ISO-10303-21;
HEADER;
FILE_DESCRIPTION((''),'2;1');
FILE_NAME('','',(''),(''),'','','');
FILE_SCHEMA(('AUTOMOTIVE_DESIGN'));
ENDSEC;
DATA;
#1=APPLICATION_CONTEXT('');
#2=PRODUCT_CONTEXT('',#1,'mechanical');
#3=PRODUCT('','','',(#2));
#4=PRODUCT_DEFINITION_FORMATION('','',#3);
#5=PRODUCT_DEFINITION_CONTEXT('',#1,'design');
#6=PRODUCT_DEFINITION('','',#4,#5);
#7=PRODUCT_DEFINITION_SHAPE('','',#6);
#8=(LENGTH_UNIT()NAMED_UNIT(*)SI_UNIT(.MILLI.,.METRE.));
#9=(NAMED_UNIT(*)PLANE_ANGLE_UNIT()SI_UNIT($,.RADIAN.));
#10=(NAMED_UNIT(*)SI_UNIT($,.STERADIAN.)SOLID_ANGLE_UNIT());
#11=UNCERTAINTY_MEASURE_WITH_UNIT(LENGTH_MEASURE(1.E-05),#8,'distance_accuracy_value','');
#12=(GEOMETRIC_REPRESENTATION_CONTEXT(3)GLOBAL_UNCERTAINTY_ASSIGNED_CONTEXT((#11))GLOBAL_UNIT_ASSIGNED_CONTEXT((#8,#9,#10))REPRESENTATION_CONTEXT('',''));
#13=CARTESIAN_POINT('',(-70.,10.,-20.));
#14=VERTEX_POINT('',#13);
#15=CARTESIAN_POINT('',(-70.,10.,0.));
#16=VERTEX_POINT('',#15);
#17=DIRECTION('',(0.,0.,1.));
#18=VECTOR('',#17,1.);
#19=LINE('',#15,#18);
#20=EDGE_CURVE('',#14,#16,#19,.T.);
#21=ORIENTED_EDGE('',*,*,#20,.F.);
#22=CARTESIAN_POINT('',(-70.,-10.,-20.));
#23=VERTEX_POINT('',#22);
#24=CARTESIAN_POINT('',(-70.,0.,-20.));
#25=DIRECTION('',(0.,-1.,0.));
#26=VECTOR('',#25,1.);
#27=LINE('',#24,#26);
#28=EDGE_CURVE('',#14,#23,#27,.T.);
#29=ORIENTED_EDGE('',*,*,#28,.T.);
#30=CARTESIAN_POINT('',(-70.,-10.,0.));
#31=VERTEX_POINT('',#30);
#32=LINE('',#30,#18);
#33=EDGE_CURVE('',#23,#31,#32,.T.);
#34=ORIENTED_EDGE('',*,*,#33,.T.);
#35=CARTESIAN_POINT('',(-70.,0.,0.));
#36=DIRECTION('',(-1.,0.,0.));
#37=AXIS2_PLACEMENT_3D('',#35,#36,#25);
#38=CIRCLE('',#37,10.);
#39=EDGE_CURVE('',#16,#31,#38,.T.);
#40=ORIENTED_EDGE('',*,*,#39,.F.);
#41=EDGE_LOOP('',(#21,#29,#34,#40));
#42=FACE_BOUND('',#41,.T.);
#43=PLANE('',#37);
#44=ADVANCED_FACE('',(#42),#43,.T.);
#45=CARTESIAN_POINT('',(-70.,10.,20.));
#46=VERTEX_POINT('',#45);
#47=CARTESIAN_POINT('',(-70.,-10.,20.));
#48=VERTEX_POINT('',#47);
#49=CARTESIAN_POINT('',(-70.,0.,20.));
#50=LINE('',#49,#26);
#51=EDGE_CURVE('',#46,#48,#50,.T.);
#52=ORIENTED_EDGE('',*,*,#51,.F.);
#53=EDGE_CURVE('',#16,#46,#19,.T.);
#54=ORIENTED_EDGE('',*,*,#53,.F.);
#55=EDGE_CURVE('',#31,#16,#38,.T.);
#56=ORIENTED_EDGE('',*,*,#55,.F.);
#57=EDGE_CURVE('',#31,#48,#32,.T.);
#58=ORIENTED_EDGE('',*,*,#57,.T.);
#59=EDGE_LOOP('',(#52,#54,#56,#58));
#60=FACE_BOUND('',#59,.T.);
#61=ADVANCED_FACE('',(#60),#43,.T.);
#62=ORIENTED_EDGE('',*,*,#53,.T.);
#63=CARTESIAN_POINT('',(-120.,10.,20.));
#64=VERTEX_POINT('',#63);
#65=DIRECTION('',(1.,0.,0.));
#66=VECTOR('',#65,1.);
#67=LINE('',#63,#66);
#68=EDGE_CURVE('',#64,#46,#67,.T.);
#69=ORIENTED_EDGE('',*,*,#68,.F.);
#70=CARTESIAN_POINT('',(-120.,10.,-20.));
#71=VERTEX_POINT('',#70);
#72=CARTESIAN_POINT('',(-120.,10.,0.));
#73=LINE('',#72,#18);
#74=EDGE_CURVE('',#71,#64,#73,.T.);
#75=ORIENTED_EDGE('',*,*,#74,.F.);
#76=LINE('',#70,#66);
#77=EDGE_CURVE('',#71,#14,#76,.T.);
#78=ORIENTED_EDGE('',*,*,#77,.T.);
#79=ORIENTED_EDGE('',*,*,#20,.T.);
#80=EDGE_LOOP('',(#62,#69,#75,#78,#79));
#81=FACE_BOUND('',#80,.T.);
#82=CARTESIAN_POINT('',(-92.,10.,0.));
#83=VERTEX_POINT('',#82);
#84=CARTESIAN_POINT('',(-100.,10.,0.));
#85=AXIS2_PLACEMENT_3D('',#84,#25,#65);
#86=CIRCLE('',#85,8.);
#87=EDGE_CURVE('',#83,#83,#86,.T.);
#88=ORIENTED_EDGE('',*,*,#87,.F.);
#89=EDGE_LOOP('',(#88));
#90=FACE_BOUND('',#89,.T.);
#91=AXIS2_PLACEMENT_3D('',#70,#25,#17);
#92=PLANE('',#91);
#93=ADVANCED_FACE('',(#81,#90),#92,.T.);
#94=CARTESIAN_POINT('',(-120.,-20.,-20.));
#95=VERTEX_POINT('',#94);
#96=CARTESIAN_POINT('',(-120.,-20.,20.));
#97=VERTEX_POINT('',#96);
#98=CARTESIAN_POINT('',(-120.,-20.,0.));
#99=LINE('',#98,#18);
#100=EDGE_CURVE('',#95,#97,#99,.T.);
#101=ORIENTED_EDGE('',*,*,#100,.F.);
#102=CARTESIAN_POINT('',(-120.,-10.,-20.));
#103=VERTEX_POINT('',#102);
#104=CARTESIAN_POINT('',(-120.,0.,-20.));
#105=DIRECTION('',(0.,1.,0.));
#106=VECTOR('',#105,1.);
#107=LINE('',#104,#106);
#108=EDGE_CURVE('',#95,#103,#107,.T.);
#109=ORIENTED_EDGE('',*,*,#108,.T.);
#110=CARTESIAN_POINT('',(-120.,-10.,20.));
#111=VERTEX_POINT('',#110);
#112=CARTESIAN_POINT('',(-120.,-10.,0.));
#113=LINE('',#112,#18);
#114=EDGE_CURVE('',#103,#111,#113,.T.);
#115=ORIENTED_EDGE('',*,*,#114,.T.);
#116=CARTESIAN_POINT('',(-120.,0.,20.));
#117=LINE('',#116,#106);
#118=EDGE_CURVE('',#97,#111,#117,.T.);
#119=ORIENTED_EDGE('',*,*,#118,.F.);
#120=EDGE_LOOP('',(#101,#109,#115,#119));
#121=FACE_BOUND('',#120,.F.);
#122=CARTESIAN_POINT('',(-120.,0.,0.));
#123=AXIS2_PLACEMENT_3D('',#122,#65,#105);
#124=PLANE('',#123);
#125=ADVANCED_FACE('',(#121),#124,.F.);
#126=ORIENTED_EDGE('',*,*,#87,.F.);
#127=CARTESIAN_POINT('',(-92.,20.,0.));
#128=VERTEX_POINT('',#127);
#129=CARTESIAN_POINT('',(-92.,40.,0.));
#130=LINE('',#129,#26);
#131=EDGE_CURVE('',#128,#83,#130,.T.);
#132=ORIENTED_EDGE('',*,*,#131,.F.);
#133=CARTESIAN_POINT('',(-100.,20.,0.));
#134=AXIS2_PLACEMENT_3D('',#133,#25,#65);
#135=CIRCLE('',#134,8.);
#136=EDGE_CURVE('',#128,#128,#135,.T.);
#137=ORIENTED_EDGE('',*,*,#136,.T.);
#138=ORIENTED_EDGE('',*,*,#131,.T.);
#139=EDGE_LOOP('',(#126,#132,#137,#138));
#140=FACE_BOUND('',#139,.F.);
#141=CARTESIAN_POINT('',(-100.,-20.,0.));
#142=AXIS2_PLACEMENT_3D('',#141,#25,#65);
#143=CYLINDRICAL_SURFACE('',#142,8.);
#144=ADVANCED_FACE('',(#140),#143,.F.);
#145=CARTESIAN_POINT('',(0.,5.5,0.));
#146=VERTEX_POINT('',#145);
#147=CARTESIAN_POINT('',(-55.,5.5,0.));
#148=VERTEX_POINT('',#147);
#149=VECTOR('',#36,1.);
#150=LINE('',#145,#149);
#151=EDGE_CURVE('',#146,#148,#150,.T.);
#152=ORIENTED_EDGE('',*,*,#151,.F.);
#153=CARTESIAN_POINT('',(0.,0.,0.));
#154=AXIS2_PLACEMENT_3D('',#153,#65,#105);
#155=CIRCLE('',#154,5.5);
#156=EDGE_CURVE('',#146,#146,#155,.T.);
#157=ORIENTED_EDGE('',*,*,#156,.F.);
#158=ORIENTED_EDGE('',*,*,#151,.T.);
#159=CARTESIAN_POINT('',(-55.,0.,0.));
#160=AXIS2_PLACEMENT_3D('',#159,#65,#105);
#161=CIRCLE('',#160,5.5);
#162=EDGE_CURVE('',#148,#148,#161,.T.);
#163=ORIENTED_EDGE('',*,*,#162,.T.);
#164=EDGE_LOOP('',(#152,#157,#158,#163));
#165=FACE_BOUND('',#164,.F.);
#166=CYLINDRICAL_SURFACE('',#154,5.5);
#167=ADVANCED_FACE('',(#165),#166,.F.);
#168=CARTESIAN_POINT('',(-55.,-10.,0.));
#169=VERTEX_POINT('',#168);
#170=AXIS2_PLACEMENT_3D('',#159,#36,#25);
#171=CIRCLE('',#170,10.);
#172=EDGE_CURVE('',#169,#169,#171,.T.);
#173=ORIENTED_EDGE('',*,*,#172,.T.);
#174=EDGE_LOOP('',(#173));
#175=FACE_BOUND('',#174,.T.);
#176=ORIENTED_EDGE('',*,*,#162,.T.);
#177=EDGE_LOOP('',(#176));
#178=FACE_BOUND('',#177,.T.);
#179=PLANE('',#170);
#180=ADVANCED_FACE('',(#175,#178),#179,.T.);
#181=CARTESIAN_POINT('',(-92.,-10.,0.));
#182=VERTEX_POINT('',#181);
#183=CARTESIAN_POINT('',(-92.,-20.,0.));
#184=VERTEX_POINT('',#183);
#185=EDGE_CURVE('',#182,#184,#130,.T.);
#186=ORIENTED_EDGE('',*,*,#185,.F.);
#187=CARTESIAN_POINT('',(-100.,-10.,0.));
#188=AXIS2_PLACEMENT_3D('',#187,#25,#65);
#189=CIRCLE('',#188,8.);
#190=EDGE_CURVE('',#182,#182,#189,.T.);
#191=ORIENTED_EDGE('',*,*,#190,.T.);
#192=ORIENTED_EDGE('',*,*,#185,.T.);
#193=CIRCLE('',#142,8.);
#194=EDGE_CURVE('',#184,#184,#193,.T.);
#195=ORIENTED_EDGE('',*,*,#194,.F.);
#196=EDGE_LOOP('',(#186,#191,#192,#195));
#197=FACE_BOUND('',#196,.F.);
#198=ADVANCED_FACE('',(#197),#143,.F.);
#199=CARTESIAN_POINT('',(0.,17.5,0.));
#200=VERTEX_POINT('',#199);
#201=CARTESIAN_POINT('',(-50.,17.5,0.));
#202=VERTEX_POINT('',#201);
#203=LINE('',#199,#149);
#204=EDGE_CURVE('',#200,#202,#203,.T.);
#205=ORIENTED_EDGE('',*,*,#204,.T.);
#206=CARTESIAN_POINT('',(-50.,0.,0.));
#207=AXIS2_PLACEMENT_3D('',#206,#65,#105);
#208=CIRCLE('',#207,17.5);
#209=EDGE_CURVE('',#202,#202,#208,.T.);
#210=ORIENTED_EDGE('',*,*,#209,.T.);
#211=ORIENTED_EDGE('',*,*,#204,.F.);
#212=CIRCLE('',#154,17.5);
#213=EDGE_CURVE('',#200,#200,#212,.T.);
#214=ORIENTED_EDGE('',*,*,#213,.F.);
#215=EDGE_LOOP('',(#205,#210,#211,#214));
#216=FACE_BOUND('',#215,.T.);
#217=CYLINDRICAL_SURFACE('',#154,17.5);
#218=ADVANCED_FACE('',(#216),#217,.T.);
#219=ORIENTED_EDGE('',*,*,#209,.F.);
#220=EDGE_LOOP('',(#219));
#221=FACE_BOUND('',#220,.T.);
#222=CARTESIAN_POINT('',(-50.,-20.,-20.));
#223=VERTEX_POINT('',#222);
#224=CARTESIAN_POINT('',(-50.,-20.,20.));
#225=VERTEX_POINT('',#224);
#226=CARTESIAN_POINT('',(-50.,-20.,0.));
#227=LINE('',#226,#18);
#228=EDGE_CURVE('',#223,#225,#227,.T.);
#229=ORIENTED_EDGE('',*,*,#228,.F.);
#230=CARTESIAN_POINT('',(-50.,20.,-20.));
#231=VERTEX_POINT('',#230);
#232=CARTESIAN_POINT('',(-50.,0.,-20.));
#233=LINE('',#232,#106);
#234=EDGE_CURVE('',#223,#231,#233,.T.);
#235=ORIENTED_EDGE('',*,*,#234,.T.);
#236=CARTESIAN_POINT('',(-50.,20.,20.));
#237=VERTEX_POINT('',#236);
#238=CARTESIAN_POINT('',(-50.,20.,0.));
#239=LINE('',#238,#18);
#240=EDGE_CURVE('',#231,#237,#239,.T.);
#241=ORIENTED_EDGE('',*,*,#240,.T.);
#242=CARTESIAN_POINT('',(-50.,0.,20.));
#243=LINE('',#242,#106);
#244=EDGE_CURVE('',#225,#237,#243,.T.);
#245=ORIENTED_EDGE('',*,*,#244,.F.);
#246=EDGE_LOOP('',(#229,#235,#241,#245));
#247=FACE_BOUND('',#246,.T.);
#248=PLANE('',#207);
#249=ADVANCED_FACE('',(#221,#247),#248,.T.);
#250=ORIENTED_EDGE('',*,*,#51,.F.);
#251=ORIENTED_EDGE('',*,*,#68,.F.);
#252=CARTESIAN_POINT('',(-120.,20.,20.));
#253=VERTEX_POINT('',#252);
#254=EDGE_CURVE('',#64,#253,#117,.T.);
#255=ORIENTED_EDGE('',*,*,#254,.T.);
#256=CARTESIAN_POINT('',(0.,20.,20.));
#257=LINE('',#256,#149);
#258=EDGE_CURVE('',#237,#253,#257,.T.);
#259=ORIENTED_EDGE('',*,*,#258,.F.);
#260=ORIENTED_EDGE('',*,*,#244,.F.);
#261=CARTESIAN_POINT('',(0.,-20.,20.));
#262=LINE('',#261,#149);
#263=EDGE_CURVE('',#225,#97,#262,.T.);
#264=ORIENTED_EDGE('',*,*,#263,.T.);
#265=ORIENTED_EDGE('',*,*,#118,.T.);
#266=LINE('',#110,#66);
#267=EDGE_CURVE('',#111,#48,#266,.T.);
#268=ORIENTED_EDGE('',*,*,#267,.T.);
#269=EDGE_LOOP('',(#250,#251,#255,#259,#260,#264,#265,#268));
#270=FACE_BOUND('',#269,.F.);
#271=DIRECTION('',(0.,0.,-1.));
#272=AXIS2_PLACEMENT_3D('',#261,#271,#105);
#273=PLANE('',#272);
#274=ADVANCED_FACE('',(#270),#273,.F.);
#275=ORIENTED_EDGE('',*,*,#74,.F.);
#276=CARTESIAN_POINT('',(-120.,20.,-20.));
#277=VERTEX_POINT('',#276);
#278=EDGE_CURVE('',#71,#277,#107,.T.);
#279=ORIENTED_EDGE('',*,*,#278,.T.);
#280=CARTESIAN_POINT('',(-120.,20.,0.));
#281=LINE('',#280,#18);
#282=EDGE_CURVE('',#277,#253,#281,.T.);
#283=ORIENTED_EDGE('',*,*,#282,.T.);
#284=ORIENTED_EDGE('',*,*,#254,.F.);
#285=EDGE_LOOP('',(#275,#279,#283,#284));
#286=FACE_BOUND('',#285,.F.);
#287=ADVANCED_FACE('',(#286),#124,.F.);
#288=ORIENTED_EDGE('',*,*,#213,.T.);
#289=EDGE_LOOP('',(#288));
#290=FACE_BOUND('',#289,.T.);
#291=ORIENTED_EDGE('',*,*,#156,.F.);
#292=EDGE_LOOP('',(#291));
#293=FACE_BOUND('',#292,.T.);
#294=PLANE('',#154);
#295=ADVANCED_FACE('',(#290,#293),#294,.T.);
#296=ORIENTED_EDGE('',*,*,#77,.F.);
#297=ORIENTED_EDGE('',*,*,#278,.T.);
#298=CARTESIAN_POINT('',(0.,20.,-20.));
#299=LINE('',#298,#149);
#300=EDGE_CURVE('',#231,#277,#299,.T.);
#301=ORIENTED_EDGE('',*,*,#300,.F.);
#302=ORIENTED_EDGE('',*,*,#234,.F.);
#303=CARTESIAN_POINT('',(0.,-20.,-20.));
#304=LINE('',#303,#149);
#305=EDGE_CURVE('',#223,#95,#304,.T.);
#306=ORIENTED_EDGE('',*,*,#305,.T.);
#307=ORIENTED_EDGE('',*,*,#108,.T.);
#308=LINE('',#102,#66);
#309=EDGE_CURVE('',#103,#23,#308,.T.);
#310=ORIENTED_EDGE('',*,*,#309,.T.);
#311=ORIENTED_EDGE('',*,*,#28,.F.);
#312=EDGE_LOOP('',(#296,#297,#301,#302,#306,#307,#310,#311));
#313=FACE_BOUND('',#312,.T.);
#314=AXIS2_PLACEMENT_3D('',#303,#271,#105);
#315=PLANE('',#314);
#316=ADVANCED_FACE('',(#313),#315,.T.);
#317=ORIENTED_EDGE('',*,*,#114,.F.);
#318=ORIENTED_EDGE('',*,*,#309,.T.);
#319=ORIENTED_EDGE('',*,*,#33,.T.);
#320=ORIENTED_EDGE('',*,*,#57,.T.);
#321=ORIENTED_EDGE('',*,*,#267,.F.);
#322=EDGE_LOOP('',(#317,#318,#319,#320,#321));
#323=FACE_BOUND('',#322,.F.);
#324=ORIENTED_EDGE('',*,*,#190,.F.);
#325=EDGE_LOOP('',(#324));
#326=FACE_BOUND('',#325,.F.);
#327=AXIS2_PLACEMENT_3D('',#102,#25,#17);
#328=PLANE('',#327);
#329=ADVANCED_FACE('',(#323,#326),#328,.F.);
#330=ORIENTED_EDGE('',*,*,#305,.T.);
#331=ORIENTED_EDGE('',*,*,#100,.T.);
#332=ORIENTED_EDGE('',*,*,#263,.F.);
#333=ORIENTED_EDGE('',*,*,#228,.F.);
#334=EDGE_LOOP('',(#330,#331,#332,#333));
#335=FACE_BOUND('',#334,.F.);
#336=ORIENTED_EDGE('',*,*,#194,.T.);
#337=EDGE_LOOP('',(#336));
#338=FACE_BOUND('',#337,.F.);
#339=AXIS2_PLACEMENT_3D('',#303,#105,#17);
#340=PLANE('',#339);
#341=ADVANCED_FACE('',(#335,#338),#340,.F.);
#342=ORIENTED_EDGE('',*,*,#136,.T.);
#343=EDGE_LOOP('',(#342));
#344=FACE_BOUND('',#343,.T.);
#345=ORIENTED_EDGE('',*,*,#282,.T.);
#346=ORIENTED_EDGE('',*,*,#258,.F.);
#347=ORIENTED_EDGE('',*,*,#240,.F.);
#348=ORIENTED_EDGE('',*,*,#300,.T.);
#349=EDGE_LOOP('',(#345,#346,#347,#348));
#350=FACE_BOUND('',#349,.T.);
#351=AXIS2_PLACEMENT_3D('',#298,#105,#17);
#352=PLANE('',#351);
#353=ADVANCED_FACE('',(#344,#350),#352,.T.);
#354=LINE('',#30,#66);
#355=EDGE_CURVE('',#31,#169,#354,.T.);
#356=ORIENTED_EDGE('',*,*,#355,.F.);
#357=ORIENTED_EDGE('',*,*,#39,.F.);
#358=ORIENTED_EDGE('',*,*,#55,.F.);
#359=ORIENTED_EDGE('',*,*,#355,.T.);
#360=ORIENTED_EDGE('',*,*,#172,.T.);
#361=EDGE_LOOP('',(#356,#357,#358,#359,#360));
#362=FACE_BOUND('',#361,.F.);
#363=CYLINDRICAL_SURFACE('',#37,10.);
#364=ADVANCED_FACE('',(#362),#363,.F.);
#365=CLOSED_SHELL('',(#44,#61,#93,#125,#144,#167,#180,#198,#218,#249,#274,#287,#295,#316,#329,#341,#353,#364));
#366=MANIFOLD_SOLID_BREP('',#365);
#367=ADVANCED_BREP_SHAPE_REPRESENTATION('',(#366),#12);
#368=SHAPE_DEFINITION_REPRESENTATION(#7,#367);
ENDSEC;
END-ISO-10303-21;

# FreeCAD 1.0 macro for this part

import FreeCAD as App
import Part
import Sketcher
from FreeCAD import Vector
Q = App.Units.Quantity

doc = App.newDocument("Part")
body = doc.addObject("PartDesign::Body", "Body")

# Sketch on YZ plane
sketch1 = body.newObject("Sketcher::SketchObject", "Sketch")
sketch1.AttachmentSupport = (doc.getObject("YZ_Plane"), [""])
sketch1.MapMode = "FlatFace"
sketch1.addGeometry(Part.LineSegment(Vector(-20, 20, 0), Vector(-20, -20, 0)), False)
sketch1.addGeometry(Part.LineSegment(Vector(-20, -20, 0), Vector(20, -20, 0)), False)
sketch1.addGeometry(Part.LineSegment(Vector(20, -20, 0), Vector(20, 20, 0)), False)
sketch1.addGeometry(Part.LineSegment(Vector(20, 20, 0), Vector(-20, 20, 0)), False)
sketch1.addConstraint(Sketcher.Constraint("Coincident", 0, 2, 1, 1))
sketch1.addConstraint(Sketcher.Constraint("Coincident", 1, 2, 2, 1))
sketch1.addConstraint(Sketcher.Constraint("Coincident", 2, 2, 3, 1))
sketch1.addConstraint(Sketcher.Constraint("Coincident", 3, 2, 0, 1))
sketch1.addConstraint(Sketcher.Constraint("Vertical", 0))
sketch1.addConstraint(Sketcher.Constraint("Horizontal", 1))
sketch1.addConstraint(Sketcher.Constraint("Vertical", 2))
sketch1.addConstraint(Sketcher.Constraint("Horizontal", 3))
sketch1.addConstraint(Sketcher.Constraint("Symmetric", 0, 2, 2, 2, -1, 1))
sketch1.addConstraint(Sketcher.Constraint("Equal", 3, 0))
sketch1.addConstraint(Sketcher.Constraint("DistanceX", 1, 1, 1, 2, Q("40 mm")))
pad1 = body.newObject("PartDesign::Pad", "Pad")
pad1.Profile = sketch1
pad1.Length = 120
pad1.Reversed = True

# Sketch on YZ plane
sketch2 = body.newObject("Sketcher::SketchObject", "Sketch001")
sketch2.AttachmentSupport = (doc.getObject("YZ_Plane"), [""])
sketch2.MapMode = "FlatFace"
sketch2.addGeometry(Part.LineSegment(Vector(-20, 20, 0), Vector(-20, -20, 0)), False)
sketch2.addGeometry(Part.LineSegment(Vector(-20, -20, 0), Vector(20, -20, 0)), False)
sketch2.addGeometry(Part.LineSegment(Vector(20, -20, 0), Vector(20, 20, 0)), False)
sketch2.addGeometry(Part.LineSegment(Vector(20, 20, 0), Vector(-20, 20, 0)), False)
sketch2.addGeometry(Part.Circle(Vector(0, 0, 0), Vector(0, 0, 1), 18), False)
sketch2.addConstraint(Sketcher.Constraint("Coincident", 0, 2, 1, 1))
sketch2.addConstraint(Sketcher.Constraint("Coincident", 1, 2, 2, 1))
sketch2.addConstraint(Sketcher.Constraint("Coincident", 2, 2, 3, 1))
sketch2.addConstraint(Sketcher.Constraint("Coincident", 3, 2, 0, 1))
sketch2.addConstraint(Sketcher.Constraint("Vertical", 0))
sketch2.addConstraint(Sketcher.Constraint("Horizontal", 1))
sketch2.addConstraint(Sketcher.Constraint("Vertical", 2))
sketch2.addConstraint(Sketcher.Constraint("Horizontal", 3))
sketch2.addConstraint(Sketcher.Constraint("Coincident", 4, 3, -1, 1))
sketch2.addConstraint(Sketcher.Constraint("Symmetric", 0, 2, 2, 2, -1, 1))
sketch2.addConstraint(Sketcher.Constraint("Equal", 3, 0))
sketch2.addConstraint(Sketcher.Constraint("Diameter", 4, Q("35 mm")))
sketch2.addConstraint(Sketcher.Constraint("DistanceX", 1, 1, 1, 2, Q("40 mm")))
pocket1 = body.newObject("PartDesign::Pocket", "Pocket")
pocket1.Profile = sketch2
pocket1.Length = 50

# Sketch on YZ plane
sketch3 = body.newObject("Sketcher::SketchObject", "Sketch002")
sketch3.AttachmentSupport = (doc.getObject("YZ_Plane"), [""])
sketch3.MapMode = "FlatFace"
sketch3.addGeometry(Part.Circle(Vector(0, 0, 0), Vector(0, 0, 1), 6), False)
sketch3.addConstraint(Sketcher.Constraint("Coincident", 0, 3, -1, 1))
sketch3.addConstraint(Sketcher.Constraint("Diameter", 0, Q("11 mm")))
pocket2 = body.newObject("PartDesign::Pocket", "Pocket001")
pocket2.Profile = sketch3
pocket2.Length = 100

# Sketch on YZ plane
sketch4 = body.newObject("Sketcher::SketchObject", "Sketch003")
sketch4.AttachmentSupport = (doc.getObject("YZ_Plane"), [""])
sketch4.MapMode = "FlatFace"
sketch4.AttachmentOffset = App.Placement(Vector(0, 0, -120), App.Rotation())
sketch4.addGeometry(Part.LineSegment(Vector(10, 20, 0), Vector(10, -20, 0)), False)
sketch4.addGeometry(Part.LineSegment(Vector(10, -20, 0), Vector(-10, -20, 0)), False)
sketch4.addGeometry(Part.LineSegment(Vector(-10, -20, 0), Vector(-10, 20, 0)), False)
sketch4.addGeometry(Part.LineSegment(Vector(-10, 20, 0), Vector(10, 20, 0)), False)
sketch4.addConstraint(Sketcher.Constraint("Coincident", 0, 2, 1, 1))
sketch4.addConstraint(Sketcher.Constraint("Coincident", 1, 2, 2, 1))
sketch4.addConstraint(Sketcher.Constraint("Coincident", 2, 2, 3, 1))
sketch4.addConstraint(Sketcher.Constraint("Coincident", 3, 2, 0, 1))
sketch4.addConstraint(Sketcher.Constraint("Vertical", 0))
sketch4.addConstraint(Sketcher.Constraint("Horizontal", 1))
sketch4.addConstraint(Sketcher.Constraint("Vertical", 2))
sketch4.addConstraint(Sketcher.Constraint("Horizontal", 3))
sketch4.addConstraint(Sketcher.Constraint("Symmetric", 0, 2, 2, 2, -1, 1))
sketch4.addConstraint(Sketcher.Constraint("DistanceX", 1, 2, 1, 1, Q("20 mm")))
sketch4.addConstraint(Sketcher.Constraint("DistanceY", 0, 2, 0, 1, Q("40 mm")))
pocket3 = body.newObject("PartDesign::Pocket", "Pocket002")
pocket3.Profile = sketch4
pocket3.Length = 50
pocket3.Reversed = True

# Sketch on YZ plane
sketch5 = body.newObject("Sketcher::SketchObject", "Sketch004")
sketch5.AttachmentSupport = (doc.getObject("YZ_Plane"), [""])
sketch5.MapMode = "FlatFace"
sketch5.AttachmentOffset = App.Placement(Vector(0, 0, -70), App.Rotation())
sketch5.addGeometry(Part.Circle(Vector(0, 0, 0), Vector(0, 0, 1), 10), False)
sketch5.addConstraint(Sketcher.Constraint("Coincident", 0, 3, -1, 1))
sketch5.addConstraint(Sketcher.Constraint("Diameter", 0, Q("20 mm")))
pocket4 = body.newObject("PartDesign::Pocket", "Pocket003")
pocket4.Profile = sketch5
pocket4.Length = 15
pocket4.Reversed = True

# Sketch on XZ plane
sketch6 = body.newObject("Sketcher::SketchObject", "Sketch005")
sketch6.AttachmentSupport = (doc.getObject("XZ_Plane"), [""])
sketch6.MapMode = "FlatFace"
sketch6.AttachmentOffset = App.Placement(Vector(0, 0, 20), App.Rotation())
sketch6.addGeometry(Part.Circle(Vector(-100, 0, 0), Vector(0, 0, 1), 8), False)
sketch6.addConstraint(Sketcher.Constraint("PointOnObject", 0, 3, -1))
sketch6.addConstraint(Sketcher.Constraint("Diameter", 0, Q("16 mm")))
sketch6.addConstraint(Sketcher.Constraint("DistanceX", 0, 3, -1, 1, Q("100 mm")))
pocket5 = body.newObject("PartDesign::Pocket", "Pocket004")
pocket5.Profile = sketch6
pocket5.Length = 120
pocket5.Midplane = True

doc.recompute()
